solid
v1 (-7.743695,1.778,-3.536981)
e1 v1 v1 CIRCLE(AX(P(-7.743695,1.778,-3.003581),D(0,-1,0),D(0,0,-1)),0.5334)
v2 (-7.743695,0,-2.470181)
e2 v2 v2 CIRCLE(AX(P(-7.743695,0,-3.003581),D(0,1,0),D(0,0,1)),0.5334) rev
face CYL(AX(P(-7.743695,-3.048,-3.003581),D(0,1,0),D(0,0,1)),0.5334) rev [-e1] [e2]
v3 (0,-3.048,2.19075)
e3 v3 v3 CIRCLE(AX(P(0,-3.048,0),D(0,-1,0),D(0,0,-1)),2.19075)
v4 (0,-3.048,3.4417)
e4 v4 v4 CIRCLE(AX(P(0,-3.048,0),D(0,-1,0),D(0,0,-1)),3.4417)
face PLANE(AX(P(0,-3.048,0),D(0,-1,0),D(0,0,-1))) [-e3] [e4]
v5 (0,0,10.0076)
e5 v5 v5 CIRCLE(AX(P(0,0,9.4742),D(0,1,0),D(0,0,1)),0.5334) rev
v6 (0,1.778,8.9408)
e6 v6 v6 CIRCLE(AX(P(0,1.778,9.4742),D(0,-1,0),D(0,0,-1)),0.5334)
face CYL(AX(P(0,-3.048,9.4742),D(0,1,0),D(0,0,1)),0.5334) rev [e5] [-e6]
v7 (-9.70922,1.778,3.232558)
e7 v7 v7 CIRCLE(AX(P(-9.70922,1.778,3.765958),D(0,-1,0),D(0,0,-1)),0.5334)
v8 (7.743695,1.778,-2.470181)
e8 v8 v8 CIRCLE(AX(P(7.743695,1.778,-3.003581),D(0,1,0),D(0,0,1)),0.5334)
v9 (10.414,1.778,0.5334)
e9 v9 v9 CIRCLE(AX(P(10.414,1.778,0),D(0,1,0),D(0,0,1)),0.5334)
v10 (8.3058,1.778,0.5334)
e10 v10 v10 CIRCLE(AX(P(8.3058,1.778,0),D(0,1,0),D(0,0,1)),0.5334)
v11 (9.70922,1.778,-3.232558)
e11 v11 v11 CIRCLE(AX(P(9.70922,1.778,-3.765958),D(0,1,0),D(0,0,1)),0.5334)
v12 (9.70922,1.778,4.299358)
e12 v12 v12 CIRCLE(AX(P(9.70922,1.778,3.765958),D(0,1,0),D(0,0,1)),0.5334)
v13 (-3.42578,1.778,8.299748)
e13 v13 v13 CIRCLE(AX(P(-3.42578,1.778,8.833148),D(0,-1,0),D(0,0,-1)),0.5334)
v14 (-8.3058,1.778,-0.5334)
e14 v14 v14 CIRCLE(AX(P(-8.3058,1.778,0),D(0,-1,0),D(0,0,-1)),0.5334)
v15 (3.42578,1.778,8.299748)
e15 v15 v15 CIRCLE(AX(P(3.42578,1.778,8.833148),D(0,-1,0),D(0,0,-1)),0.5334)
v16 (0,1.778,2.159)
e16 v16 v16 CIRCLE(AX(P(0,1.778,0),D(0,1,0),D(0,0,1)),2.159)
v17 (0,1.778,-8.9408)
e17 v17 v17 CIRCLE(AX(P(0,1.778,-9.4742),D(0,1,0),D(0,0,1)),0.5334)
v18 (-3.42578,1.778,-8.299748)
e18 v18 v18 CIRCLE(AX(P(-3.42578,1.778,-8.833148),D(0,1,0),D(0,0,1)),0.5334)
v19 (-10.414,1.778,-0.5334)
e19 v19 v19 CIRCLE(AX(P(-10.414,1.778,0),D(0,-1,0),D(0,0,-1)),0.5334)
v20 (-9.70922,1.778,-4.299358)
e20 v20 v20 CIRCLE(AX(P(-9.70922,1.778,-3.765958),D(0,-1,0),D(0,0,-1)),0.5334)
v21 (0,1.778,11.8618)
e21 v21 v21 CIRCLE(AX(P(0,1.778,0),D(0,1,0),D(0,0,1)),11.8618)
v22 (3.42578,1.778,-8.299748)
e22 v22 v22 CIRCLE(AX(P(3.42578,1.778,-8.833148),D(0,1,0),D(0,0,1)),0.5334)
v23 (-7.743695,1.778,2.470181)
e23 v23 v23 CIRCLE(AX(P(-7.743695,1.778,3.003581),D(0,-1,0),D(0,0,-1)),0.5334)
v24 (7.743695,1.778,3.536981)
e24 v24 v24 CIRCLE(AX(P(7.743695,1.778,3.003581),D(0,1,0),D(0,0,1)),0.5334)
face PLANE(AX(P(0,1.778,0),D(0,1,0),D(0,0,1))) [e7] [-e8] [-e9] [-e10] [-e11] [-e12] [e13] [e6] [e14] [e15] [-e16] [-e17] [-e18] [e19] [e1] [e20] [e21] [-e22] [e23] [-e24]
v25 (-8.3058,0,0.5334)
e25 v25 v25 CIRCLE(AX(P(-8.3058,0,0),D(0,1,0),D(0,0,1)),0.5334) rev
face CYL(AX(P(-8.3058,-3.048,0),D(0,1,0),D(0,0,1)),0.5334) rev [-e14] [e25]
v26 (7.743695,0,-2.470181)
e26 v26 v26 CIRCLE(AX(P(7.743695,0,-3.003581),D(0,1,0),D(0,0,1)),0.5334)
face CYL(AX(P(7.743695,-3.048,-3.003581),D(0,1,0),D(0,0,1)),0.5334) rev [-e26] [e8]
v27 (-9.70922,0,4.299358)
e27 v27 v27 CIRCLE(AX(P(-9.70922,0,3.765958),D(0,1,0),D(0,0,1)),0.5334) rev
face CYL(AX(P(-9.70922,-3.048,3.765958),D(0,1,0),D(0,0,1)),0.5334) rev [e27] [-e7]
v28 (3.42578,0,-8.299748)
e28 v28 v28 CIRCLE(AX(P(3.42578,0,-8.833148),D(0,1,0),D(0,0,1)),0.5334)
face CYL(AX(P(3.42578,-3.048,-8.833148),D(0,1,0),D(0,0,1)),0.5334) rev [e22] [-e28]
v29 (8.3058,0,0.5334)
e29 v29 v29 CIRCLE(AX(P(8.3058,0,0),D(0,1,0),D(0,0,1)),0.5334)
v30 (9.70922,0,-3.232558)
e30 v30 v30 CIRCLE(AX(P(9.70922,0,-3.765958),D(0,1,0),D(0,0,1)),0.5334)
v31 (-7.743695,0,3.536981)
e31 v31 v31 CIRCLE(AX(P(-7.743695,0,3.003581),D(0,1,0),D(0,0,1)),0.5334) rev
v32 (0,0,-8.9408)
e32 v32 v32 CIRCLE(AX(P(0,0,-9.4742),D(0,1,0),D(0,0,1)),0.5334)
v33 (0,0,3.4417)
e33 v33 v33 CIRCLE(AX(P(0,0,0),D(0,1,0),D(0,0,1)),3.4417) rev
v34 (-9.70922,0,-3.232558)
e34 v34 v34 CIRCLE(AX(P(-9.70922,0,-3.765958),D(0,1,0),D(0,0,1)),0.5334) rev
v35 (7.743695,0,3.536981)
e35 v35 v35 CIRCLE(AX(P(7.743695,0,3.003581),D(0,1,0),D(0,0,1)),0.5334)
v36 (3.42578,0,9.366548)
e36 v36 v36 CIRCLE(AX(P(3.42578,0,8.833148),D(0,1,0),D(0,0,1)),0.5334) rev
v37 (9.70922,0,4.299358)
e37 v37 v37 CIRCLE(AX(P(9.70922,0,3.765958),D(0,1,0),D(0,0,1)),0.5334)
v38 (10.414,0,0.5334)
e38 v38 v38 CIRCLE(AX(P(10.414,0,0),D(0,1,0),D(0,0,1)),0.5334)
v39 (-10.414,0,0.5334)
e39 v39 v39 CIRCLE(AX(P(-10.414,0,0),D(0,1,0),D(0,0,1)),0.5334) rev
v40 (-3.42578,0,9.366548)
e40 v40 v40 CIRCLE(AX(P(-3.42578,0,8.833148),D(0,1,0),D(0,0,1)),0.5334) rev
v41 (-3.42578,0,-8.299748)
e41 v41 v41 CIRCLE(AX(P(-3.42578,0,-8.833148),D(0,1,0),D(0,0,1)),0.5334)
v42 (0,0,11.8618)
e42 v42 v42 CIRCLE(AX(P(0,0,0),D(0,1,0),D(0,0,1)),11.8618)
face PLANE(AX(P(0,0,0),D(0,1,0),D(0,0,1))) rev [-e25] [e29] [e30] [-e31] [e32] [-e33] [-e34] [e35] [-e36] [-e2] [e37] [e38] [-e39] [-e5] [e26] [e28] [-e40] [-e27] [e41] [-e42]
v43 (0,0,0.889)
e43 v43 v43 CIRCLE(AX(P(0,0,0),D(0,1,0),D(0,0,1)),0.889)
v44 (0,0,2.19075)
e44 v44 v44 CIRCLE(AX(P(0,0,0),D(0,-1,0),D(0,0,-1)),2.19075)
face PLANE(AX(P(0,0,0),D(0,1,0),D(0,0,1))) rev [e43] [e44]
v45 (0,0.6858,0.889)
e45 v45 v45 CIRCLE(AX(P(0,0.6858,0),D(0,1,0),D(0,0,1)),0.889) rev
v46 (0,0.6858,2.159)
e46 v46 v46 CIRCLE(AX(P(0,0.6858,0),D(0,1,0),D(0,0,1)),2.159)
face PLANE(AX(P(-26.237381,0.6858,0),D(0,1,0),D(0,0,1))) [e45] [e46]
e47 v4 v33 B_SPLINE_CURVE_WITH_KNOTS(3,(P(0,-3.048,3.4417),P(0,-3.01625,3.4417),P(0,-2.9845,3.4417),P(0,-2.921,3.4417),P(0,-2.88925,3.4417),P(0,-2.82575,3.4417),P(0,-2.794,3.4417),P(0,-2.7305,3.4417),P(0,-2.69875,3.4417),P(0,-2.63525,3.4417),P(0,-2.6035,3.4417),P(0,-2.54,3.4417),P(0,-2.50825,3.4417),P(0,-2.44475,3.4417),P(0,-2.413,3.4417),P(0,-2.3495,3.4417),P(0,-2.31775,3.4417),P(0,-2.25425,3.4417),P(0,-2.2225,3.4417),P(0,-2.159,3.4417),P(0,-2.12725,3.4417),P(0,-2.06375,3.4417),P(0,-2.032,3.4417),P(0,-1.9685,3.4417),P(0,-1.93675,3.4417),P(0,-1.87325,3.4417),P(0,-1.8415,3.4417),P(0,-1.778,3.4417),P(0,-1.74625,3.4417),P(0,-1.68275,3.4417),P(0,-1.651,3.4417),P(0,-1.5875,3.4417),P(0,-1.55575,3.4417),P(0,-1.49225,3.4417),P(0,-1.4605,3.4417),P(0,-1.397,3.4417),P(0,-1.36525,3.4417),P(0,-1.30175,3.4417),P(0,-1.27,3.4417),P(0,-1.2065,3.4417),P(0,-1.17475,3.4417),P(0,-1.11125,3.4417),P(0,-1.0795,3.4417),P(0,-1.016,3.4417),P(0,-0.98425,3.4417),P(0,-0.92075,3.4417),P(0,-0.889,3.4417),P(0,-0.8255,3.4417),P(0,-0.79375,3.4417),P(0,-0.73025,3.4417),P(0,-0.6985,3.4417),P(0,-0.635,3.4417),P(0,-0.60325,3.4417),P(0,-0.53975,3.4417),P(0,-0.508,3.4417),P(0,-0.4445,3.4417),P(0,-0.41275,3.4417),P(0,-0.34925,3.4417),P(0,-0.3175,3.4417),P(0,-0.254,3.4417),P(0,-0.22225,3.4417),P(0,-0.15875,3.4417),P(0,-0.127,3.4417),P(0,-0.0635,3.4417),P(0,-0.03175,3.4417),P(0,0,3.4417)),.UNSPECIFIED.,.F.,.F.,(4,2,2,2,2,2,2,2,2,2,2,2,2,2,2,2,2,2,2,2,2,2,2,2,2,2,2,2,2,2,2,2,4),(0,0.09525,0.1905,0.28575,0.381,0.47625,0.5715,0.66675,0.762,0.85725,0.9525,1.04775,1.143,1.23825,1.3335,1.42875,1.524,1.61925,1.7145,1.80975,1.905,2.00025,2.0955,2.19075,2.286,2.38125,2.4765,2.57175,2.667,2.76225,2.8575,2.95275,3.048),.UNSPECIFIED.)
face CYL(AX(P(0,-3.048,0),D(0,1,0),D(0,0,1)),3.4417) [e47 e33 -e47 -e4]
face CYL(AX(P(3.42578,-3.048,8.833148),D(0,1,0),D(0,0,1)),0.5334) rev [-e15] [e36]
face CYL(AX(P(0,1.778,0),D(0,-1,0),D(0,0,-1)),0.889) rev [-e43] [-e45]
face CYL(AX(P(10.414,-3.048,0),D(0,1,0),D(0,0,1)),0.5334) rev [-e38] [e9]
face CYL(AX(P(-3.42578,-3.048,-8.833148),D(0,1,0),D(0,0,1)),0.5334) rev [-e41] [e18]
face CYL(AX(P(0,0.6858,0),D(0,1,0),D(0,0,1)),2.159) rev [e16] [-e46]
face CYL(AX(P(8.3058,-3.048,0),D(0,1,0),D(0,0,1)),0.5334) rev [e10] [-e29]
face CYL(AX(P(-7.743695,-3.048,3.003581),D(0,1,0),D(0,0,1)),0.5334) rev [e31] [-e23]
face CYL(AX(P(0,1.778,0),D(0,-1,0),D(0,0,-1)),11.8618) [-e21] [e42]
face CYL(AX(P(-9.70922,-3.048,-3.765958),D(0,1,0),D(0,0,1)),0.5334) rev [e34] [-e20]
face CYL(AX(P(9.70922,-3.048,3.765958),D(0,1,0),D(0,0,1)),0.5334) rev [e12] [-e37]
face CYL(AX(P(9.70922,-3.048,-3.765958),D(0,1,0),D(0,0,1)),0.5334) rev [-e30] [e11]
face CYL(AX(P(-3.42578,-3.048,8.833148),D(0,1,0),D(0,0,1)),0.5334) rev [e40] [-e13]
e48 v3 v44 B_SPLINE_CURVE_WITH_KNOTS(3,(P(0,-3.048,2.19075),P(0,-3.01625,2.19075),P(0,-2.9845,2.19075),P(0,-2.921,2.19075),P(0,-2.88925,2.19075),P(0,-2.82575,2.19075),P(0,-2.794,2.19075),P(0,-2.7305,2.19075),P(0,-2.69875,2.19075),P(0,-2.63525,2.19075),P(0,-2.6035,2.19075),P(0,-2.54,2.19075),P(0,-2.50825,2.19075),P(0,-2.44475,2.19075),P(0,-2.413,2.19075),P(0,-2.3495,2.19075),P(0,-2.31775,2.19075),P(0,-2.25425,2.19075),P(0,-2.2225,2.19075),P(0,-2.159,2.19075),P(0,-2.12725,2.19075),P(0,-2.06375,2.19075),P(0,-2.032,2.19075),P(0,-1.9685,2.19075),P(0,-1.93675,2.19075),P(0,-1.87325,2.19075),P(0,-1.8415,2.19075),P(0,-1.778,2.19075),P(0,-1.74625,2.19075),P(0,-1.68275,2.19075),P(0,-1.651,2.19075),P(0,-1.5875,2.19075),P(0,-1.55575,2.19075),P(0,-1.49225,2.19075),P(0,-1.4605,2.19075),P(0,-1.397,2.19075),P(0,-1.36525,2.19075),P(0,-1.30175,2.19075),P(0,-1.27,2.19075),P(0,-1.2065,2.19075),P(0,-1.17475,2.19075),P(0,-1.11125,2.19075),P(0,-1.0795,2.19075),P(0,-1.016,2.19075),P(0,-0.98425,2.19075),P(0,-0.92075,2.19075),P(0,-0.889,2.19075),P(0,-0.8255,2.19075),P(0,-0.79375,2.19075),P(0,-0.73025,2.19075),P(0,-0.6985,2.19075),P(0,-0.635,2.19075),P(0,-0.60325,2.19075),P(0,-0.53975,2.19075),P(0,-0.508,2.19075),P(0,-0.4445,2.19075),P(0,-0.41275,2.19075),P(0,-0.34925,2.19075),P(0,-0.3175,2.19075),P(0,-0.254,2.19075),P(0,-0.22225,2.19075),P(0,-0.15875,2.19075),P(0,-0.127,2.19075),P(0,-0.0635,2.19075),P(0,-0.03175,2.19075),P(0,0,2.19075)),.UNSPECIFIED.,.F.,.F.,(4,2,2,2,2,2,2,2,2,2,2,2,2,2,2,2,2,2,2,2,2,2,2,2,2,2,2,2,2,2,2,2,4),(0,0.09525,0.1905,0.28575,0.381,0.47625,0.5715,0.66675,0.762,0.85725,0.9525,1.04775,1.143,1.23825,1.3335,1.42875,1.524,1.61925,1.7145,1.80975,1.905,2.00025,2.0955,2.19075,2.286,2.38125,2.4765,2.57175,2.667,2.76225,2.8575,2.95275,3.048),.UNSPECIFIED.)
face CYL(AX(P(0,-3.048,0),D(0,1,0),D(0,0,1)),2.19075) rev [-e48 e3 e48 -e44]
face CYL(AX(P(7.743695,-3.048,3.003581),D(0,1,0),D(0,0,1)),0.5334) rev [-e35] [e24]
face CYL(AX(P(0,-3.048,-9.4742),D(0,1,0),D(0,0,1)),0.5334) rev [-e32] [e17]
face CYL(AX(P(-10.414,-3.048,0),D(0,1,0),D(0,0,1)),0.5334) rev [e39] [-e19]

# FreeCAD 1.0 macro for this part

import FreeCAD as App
import Part
import Sketcher
Q = App.Units.Quantity

doc = App.newDocument("Part")
body = doc.addObject("PartDesign::Body", "Body")

# Sketch on XZ plane
sketch1 = body.newObject("Sketcher::SketchObject", "Sketch")
sketch1.AttachmentSupport = (doc.getObject("XZ_Plane"), [""])
sketch1.MapMode = "FlatFace"
sketch1.addGeometry([
    Part.Circle(App.Vector(0, 0, 0), App.Vector(0, 0, 1), 11.9),
    Part.Circle(App.Vector(0, 0, 0), App.Vector(0, 0, 1), 0.9),
], False)
sketch1.addConstraint([
    Sketcher.Constraint("Coincident", 0, 3, -1, 1),
    Sketcher.Constraint("Coincident", 1, 3, -1, 1),
    Sketcher.Constraint("Diameter", 1, Q("0.07 in")),
    Sketcher.Constraint("Diameter", 0, Q("0.934 in")),
])
pad1 = body.newObject("PartDesign::Pad", "Pad")
pad1.Profile = sketch1
pad1.Length = Q("0.07 in")
pad1.Reversed = True

# Sketch on XZ plane
sketch2 = body.newObject("Sketcher::SketchObject", "Sketch001")
sketch2.AttachmentSupport = (doc.getObject("XZ_Plane"), [""])
sketch2.MapMode = "FlatFace"
sketch2.addGeometry([
    Part.Circle(App.Vector(0, 0, 0), App.Vector(0, 0, 1), 3.4),
    Part.Circle(App.Vector(0, 0, 0), App.Vector(0, 0, 1), 2.2),
], False)
sketch2.addConstraint([
    Sketcher.Constraint("Coincident", 0, 3, -1, 1),
    Sketcher.Constraint("Coincident", 1, 3, -1, 1),
    Sketcher.Constraint("Diameter", 0, Q("0.271 in")),
    Sketcher.Constraint("Diameter", 1, Q("0.1725 in")),
])
pad2 = body.newObject("PartDesign::Pad", "Pad001")
pad2.Profile = sketch2
pad2.Length = Q("0.12 in")

# Sketch on XZ plane
sketch3 = body.newObject("Sketcher::SketchObject", "Sketch002")
sketch3.AttachmentSupport = (doc.getObject("XZ_Plane"), [""])
sketch3.MapMode = "FlatFace"
sketch3.AttachmentOffset = App.Placement(App.Vector(0, 0, -0.027 * 25.4), App.Rotation())
sketch3.addGeometry([
    Part.Circle(App.Vector(0, 0, 0), App.Vector(0, 0, 1), 2.2),
    Part.Circle(App.Vector(0, 0, 0), App.Vector(0, 0, 1), 0.9),
], False)
sketch3.addConstraint([
    Sketcher.Constraint("Coincident", 0, 3, -1, 1),
    Sketcher.Constraint("Coincident", 1, 3, -1, 1),
    Sketcher.Constraint("Diameter", 0, Q("0.17 in")),
    Sketcher.Constraint("Diameter", 1, Q("0.07 in")),
])
pocket1 = body.newObject("PartDesign::Pocket", "Pocket")
pocket1.Profile = sketch3
pocket1.Length = Q("0.043 in")

# Sketch on XZ plane
sketch4 = body.newObject("Sketcher::SketchObject", "Sketch003")
sketch4.AttachmentSupport = (doc.getObject("XZ_Plane"), [""])
sketch4.MapMode = "FlatFace"
sketch4.AttachmentOffset = App.Placement(App.Vector(0, 0, -0.07 * 25.4), App.Rotation())
sketch4.addGeometry([
    Part.Circle(App.Vector(0, -9.5, 0), App.Vector(0, 0, 1), 0.5),  # 0
    Part.Circle(App.Vector(10.4, 0, 0), App.Vector(0, 0, 1), 0.5),  # 1
    Part.Circle(App.Vector(8.3, 0, 0), App.Vector(0, 0, 1), 0.5),  # 2
    Part.Circle(App.Vector(3.4, -8.8, 0), App.Vector(0, 0, 1), 0.5),  # 3
    Part.Circle(App.Vector(-3.4, -8.8, 0), App.Vector(0, 0, 1), 0.5),  # 4
    Part.Circle(App.Vector(7.7, -3, 0), App.Vector(0, 0, 1), 0.5),  # 5
    Part.Circle(App.Vector(9.7, -3.8, 0), App.Vector(0, 0, 1), 0.5),  # 6
    Part.Circle(App.Vector(7.7, 3, 0), App.Vector(0, 0, 1), 0.5),  # 7
    Part.Circle(App.Vector(9.7, 3.8, 0), App.Vector(0, 0, 1), 0.5),  # 8
    Part.Circle(App.Vector(3.4, 8.8, 0), App.Vector(0, 0, 1), 0.5),  # 9
    Part.Circle(App.Vector(0, 9.5, 0), App.Vector(0, 0, 1), 0.5),  # 10
    Part.Circle(App.Vector(-3.4, 8.8, 0), App.Vector(0, 0, 1), 0.5),  # 11
    Part.Circle(App.Vector(-9.7, 3.8, 0), App.Vector(0, 0, 1), 0.5),  # 12
    Part.Circle(App.Vector(-7.7, 3, 0), App.Vector(0, 0, 1), 0.5),  # 13
    Part.Circle(App.Vector(-9.7, -3.8, 0), App.Vector(0, 0, 1), 0.5),  # 14
    Part.Circle(App.Vector(-7.7, -3, 0), App.Vector(0, 0, 1), 0.5),  # 15
    Part.Circle(App.Vector(-8.3, 0, 0), App.Vector(0, 0, 1), 0.5),  # 16
    Part.Circle(App.Vector(-10.4, 0, 0), App.Vector(0, 0, 1), 0.5),  # 17
], False)
sketch4.addConstraint([
    Sketcher.Constraint("Equal", 0, 1),
    Sketcher.Constraint("Equal", 1, 2),
    Sketcher.Constraint("Equal", 2, 3),
    Sketcher.Constraint("Equal", 3, 4),
    Sketcher.Constraint("Equal", 4, 5),
    Sketcher.Constraint("Equal", 5, 6),
    Sketcher.Constraint("Equal", 6, 7),
    Sketcher.Constraint("Equal", 7, 8),
    Sketcher.Constraint("Equal", 8, 9),
    Sketcher.Constraint("Equal", 9, 10),
    Sketcher.Constraint("Equal", 10, 11),
    Sketcher.Constraint("Equal", 11, 12),
    Sketcher.Constraint("Equal", 12, 13),
    Sketcher.Constraint("Equal", 13, 14),
    Sketcher.Constraint("Equal", 14, 15),
    Sketcher.Constraint("Equal", 15, 16),
    Sketcher.Constraint("Equal", 16, 17),
    Sketcher.Constraint("Symmetric", 4, 3, 9, 3, -1, 1),
    Sketcher.Constraint("Symmetric", 0, 3, 10, 3, -1, 1),
    Sketcher.Constraint("Symmetric", 3, 3, 11, 3, -1, 1),
    Sketcher.Constraint("Symmetric", 6, 3, 12, 3, -1, 1),
    Sketcher.Constraint("Symmetric", 5, 3, 13, 3, -1, 1),
    Sketcher.Constraint("Symmetric", 8, 3, 14, 3, -1, 1),
    Sketcher.Constraint("Symmetric", 7, 3, 15, 3, -1, 1),
    Sketcher.Constraint("Symmetric", 2, 3, 16, 3, -1, 1),
    Sketcher.Constraint("Symmetric", 1, 3, 17, 3, -1, 1),
    Sketcher.Constraint("Symmetric", 3, 3, 4, 3, -2),
    Sketcher.Constraint("Symmetric", 8, 3, 12, 3, -2),
    Sketcher.Constraint("Symmetric", 7, 3, 13, 3, -2),
    Sketcher.Constraint("PointOnObject", 0, 3, -2),
    Sketcher.Constraint("PointOnObject", 1, 3, -1),
    Sketcher.Constraint("PointOnObject", 2, 3, -1),
    Sketcher.Constraint("Diameter", 0, Q("0.042 in")),
    Sketcher.Constraint("DistanceX", -1, 1, 1, 3, Q("0.41 in")),
    Sketcher.Constraint("DistanceY", 0, 3, -1, 1, Q("0.373 in")),
    Sketcher.Constraint("DistanceX", -1, 1, 2, 3, Q("0.327 in")),
    Sketcher.Constraint("DistanceX", 11, 3, 8, 3, 13.135),
    Sketcher.Constraint("DistanceX", -1, 1, 3, 3, 3.42578),
    Sketcher.Constraint("DistanceY", 5, 3, -1, 1, 3.003581),
    Sketcher.Constraint("DistanceY", 6, 3, -1, 1, 3.765958),
    Sketcher.Constraint("DistanceY", 3, 3, 6, 3, 5.067189),
    Sketcher.Constraint("DistanceX", -1, 1, 5, 3, 7.743695),
])
pocket2 = body.newObject("PartDesign::Pocket", "Pocket001")
pocket2.Profile = sketch4
pocket2.Type = "ThroughAll"
pocket2.Reversed = True

doc.recompute()
